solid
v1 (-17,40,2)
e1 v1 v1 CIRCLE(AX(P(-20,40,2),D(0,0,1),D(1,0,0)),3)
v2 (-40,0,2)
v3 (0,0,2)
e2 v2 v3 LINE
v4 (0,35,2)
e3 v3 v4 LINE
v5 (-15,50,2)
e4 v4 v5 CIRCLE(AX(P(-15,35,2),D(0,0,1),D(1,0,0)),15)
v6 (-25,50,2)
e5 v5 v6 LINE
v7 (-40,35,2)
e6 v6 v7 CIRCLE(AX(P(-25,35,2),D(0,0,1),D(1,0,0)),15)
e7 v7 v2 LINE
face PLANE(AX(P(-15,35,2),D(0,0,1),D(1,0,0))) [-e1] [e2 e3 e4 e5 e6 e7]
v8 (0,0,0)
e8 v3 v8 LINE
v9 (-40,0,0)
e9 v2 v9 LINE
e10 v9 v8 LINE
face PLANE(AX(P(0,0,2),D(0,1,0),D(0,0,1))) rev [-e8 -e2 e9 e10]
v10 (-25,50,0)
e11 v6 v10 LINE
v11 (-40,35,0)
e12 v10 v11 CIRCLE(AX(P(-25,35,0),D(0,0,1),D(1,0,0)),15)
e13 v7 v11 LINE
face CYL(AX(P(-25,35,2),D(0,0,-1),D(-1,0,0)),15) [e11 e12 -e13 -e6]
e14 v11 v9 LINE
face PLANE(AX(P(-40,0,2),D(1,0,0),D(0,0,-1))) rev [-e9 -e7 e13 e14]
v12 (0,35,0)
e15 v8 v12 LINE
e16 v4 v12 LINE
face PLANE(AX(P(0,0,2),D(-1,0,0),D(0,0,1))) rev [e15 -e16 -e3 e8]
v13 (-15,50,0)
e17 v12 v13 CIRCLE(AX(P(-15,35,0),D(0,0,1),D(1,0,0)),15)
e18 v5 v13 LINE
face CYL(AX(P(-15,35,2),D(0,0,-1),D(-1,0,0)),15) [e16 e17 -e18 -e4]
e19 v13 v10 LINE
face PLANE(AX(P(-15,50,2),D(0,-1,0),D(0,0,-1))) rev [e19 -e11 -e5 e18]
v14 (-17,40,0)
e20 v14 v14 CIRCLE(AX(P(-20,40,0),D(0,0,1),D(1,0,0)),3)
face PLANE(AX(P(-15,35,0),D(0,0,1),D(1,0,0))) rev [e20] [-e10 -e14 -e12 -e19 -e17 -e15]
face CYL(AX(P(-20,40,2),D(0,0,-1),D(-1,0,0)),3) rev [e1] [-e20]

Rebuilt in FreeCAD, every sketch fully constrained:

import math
import FreeCAD as App
import Part
import Sketcher
from FreeCAD import Vector

doc = App.newDocument("Part")
body = doc.addObject("PartDesign::Body", "Body")

# Sketch on XY plane
sketch1 = body.newObject("Sketcher::SketchObject", "Sketch")
sketch1.AttachmentSupport = (doc.getObject("XY_Plane"), [""])
sketch1.MapMode = "FlatFace"
sketch1.addGeometry([
    Part.LineSegment(Vector(-40, 0, 0), Vector(0, 0, 0)),  # 0
    Part.LineSegment(Vector(0, 0, 0), Vector(0, 35, 0)),  # 1
    Part.ArcOfCircle(Part.Circle(Vector(-15, 35, 0), Vector(0, 0, 1), 15), math.radians(0), math.radians(90)),  # 2
    Part.LineSegment(Vector(-15, 50, 0), Vector(-25, 50, 0)),  # 3
    Part.ArcOfCircle(Part.Circle(Vector(-25, 35, 0), Vector(0, 0, 1), 15), math.radians(90), math.radians(180)),  # 4
    Part.LineSegment(Vector(-40, 35, 0), Vector(-40, 0, 0)),  # 5
    Part.Circle(Vector(-20, 40, 0), Vector(0, 0, 1), 3),  # 6
], False)
sketch1.addConstraint([
    Sketcher.Constraint("Coincident", 0, 2, 1, 1),
    Sketcher.Constraint("Tangent", 1, 2, 2, 1),
    Sketcher.Constraint("Tangent", 2, 2, 3, 1),
    Sketcher.Constraint("Tangent", 3, 2, 4, 1),
    Sketcher.Constraint("Tangent", 4, 2, 5, 1),
    Sketcher.Constraint("Coincident", 5, 2, 0, 1),
    Sketcher.Constraint("Horizontal", 0),
    Sketcher.Constraint("Vertical", 1),
    Sketcher.Constraint("Horizontal", 3),
    Sketcher.Constraint("Vertical", 5),
    Sketcher.Constraint("Coincident", 0, 2, -1, 1),
    Sketcher.Constraint("Equal", 2, 4),
    Sketcher.Constraint("Diameter", 6, 6.0),
    Sketcher.Constraint("Radius", 2, 15.0),
    Sketcher.Constraint("DistanceX", 0, 1, 0, 2, 40.0),
    Sketcher.Constraint("DistanceY", 1, 1, 1, 2, 35.0),
    Sketcher.Constraint("DistanceX", 6, 3, -1, 1, 20.0),
    Sketcher.Constraint("DistanceY", -1, 1, 6, 3, 40.0),
])
pad1 = body.newObject("PartDesign::Pad", "Pad")
pad1.Profile = sketch1
pad1.Length = 2

doc.recompute()
